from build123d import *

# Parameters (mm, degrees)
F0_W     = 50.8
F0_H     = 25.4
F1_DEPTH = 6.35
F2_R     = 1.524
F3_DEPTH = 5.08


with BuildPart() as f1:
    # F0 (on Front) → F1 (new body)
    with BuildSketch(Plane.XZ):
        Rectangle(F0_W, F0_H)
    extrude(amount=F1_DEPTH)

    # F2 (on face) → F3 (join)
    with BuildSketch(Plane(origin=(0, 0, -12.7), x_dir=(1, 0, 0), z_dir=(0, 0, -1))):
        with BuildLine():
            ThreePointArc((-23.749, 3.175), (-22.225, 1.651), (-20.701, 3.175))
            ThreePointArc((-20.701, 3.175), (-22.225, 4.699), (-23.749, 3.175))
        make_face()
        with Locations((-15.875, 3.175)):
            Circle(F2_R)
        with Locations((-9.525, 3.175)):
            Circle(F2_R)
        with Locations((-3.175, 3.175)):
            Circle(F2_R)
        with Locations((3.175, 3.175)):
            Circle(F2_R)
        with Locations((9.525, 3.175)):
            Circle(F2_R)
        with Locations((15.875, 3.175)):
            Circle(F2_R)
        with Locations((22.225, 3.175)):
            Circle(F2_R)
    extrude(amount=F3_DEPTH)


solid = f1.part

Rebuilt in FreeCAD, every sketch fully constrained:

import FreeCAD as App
import Part
import Sketcher
Q = App.Units.Quantity


def add_polygon(sketch, points):
    """Adds a closed chain of lines whose ends are joined by coincident constraints."""
    first, n = sketch.GeometryCount, len(points)
    for a, b in zip(points, points[1:] + points[:1]):
        sketch.addGeometry(Part.LineSegment(App.Vector(*a, 0), App.Vector(*b, 0)), False)
    for i in range(n):
        sketch.addConstraint(Sketcher.Constraint("Coincident", first + i, 2, first + (i + 1) % n, 1))

doc = App.newDocument("Part")
params = doc.addObject("Spreadsheet::Sheet", "Params")
for row, (alias, value) in enumerate([
    ("sketch1_width", "2 in"),
    ("sketch1_height", "1 in"),
    ("pad1_length", "0.25 in"),
    ("sketch2_diameter", "0.12 in"),
    ("pad2_length", "0.2 in"),
], start=1):
    params.set(f"A{row}", alias)
    params.set(f"B{row}", "=" + value)
    params.setAlias(f"B{row}", alias)

body = doc.addObject("PartDesign::Body", "Body")

sketch1 = body.newObject("Sketcher::SketchObject", "Sketch")
sketch1.AttachmentSupport = (doc.getObject("XZ_Plane"), [""])
sketch1.MapMode = "FlatFace"
add_polygon(sketch1, [(-25.4, 12.7), (-25.4, -12.7), (25.4, -12.7), (25.4, 12.7)])
sketch1.addConstraint(Sketcher.Constraint("Vertical", 0))
sketch1.addConstraint(Sketcher.Constraint("Horizontal", 1))
sketch1.addConstraint(Sketcher.Constraint("Vertical", 2))
sketch1.addConstraint(Sketcher.Constraint("Horizontal", 3))
sketch1.addConstraint(Sketcher.Constraint("Symmetric", 0, 2, 2, 2, -1, 1))
sketch1.addConstraint(Sketcher.Constraint("DistanceX", 1, 1, 1, 2, Q("2 in")))
sketch1.addConstraint(Sketcher.Constraint("DistanceY", 0, 2, 0, 1, Q("1 in")))
sketch1.setExpression("Constraints[9]", "Params.sketch1_width")
sketch1.setExpression("Constraints[10]", "Params.sketch1_height")
pad1 = body.newObject("PartDesign::Pad", "Pad")
pad1.Profile = sketch1
pad1.setExpression("Length", "Params.pad1_length")

sketch2 = body.newObject("Sketcher::SketchObject", "Sketch001")
sketch2.AttachmentSupport = (doc.getObject("XY_Plane"), [""])
sketch2.MapMode = "FlatFace"
sketch2.AttachmentOffset = App.Placement(App.Vector(0, 0, -0.5 * 25.4), App.Rotation())
sketch2.addGeometry(Part.Circle(App.Vector(-22.225, -3.175, 0), App.Vector(0, 0, 1), 1.524), False)
sketch2.addGeometry(Part.Circle(App.Vector(-15.875, -3.175, 0), App.Vector(0, 0, 1), 1.524), False)
sketch2.addGeometry(Part.Circle(App.Vector(-9.525, -3.175, 0), App.Vector(0, 0, 1), 1.524), False)
sketch2.addGeometry(Part.Circle(App.Vector(-3.175, -3.175, 0), App.Vector(0, 0, 1), 1.524), False)
sketch2.addGeometry(Part.Circle(App.Vector(3.175, -3.175, 0), App.Vector(0, 0, 1), 1.524), False)
sketch2.addGeometry(Part.Circle(App.Vector(9.525, -3.175, 0), App.Vector(0, 0, 1), 1.524), False)
sketch2.addGeometry(Part.Circle(App.Vector(15.875, -3.175, 0), App.Vector(0, 0, 1), 1.524), False)
sketch2.addGeometry(Part.Circle(App.Vector(22.225, -3.175, 0), App.Vector(0, 0, 1), 1.524), False)
sketch2.addConstraint(Sketcher.Constraint("Equal", 0, 1))
sketch2.addConstraint(Sketcher.Constraint("Equal", 1, 2))
sketch2.addConstraint(Sketcher.Constraint("Equal", 2, 3))
sketch2.addConstraint(Sketcher.Constraint("Equal", 3, 4))
sketch2.addConstraint(Sketcher.Constraint("Equal", 4, 5))
sketch2.addConstraint(Sketcher.Constraint("Equal", 5, 6))
sketch2.addConstraint(Sketcher.Constraint("Equal", 6, 7))
sketch2.addConstraint(Sketcher.Constraint("Symmetric", 3, 3, 4, 3, -2))
sketch2.addConstraint(Sketcher.Constraint("Symmetric", 2, 3, 5, 3, -2))
sketch2.addConstraint(Sketcher.Constraint("Symmetric", 1, 3, 6, 3, -2))
sketch2.addConstraint(Sketcher.Constraint("Symmetric", 0, 3, 7, 3, -2))
sketch2.addConstraint(Sketcher.Constraint("Horizontal", 0, 3, 1, 3))
sketch2.addConstraint(Sketcher.Constraint("Horizontal", 1, 3, 2, 3))
sketch2.addConstraint(Sketcher.Constraint("Horizontal", 2, 3, 3, 3))
sketch2.addConstraint(Sketcher.Constraint("Diameter", 0, Q("0.12 in")))
sketch2.addConstraint(Sketcher.Constraint("DistanceX", 0, 3, 4, 3, Q("1 in")))
sketch2.addConstraint(Sketcher.Constraint("DistanceX", 1, 3, 5, 3, Q("1 in")))
sketch2.addConstraint(Sketcher.Constraint("DistanceX", 0, 3, 2, 3, Q("0.5 in")))
sketch2.addConstraint(Sketcher.Constraint("DistanceX", 0, 3, 1, 3, Q("0.25 in")))
sketch2.addConstraint(Sketcher.Constraint("DistanceY", 0, 3, -1, 1, Q("0.125 in")))
sketch2.setExpression("Constraints[14]", "Params.sketch2_diameter")
pad2 = body.newObject("PartDesign::Pad", "Pad001")
pad2.Profile = sketch2
pad2.setExpression("Length", "Params.pad2_length")
pad2.Reversed = True

doc.recompute()
